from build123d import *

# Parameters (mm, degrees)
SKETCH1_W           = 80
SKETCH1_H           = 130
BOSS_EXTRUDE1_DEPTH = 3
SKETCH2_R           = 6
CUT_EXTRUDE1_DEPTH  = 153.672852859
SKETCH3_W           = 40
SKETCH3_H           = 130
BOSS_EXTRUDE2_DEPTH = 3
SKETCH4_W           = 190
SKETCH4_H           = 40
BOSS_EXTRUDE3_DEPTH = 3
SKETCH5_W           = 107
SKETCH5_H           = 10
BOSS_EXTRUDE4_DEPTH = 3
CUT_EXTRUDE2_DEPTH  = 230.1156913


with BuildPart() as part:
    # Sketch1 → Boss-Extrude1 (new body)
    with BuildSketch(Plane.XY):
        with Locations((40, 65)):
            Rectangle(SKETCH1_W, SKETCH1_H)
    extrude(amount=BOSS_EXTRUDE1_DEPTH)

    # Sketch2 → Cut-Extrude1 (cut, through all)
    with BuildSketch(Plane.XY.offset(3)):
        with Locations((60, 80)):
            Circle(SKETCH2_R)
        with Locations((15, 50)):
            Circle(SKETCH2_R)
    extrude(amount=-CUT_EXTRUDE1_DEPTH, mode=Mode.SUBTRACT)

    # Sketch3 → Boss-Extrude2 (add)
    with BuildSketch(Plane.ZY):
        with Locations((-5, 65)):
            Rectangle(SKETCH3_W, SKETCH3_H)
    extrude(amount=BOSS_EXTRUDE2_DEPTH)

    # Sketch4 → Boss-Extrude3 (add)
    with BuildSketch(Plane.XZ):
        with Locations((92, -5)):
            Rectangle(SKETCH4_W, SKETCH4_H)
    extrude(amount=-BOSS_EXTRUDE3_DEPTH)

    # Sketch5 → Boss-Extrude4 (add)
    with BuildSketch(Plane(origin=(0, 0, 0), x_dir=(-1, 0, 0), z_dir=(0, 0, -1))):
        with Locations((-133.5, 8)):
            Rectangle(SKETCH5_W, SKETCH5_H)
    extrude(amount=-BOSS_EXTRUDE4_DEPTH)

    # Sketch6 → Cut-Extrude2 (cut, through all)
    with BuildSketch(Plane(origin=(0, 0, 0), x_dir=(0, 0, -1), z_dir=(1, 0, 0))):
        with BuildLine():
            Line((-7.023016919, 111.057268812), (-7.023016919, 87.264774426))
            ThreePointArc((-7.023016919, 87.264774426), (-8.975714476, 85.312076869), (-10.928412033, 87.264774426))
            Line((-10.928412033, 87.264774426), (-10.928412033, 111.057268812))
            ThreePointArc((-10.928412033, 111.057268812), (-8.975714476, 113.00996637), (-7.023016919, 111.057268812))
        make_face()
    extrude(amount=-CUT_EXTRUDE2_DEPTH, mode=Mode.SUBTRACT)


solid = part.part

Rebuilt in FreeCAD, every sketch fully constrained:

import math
import FreeCAD as App
import Part
import Sketcher
Q = App.Units.Quantity

doc = App.newDocument("Part")
body = doc.addObject("PartDesign::Body", "Body")

sketch1 = doc.addObject("Sketcher::SketchObject", "Sketch")
body.addObject(sketch1)
sketch1.AttachmentSupport = (doc.XY_Plane, [""])
sketch1.MapMode = "FlatFace"
sketch1.addGeometry([
    Part.LineSegment(App.Vector(0, 130, 0), App.Vector(0, 0, 0)),
    Part.LineSegment(App.Vector(0, 0, 0), App.Vector(80, 0, 0)),
    Part.LineSegment(App.Vector(80, 0, 0), App.Vector(80, 130, 0)),
    Part.LineSegment(App.Vector(80, 130, 0), App.Vector(0, 130, 0)),
], False)
sketch1.addConstraint([
    Sketcher.Constraint("Coincident", 0, 2, 1, 1),
    Sketcher.Constraint("Coincident", 1, 2, 2, 1),
    Sketcher.Constraint("Coincident", 2, 2, 3, 1),
    Sketcher.Constraint("Coincident", 3, 2, 0, 1),
    Sketcher.Constraint("Vertical", 0),
    Sketcher.Constraint("Horizontal", 1),
    Sketcher.Constraint("Vertical", 2),
    Sketcher.Constraint("Horizontal", 3),
    Sketcher.Constraint("Coincident", 0, 2, -1, 1),
    Sketcher.Constraint("DistanceX", 1, 1, 1, 2, Q("80 mm")),
    Sketcher.Constraint("DistanceY", 0, 2, 0, 1, Q("130 mm")),
])
pad1 = doc.addObject("PartDesign::Pad", "Pad")
body.addObject(pad1)
pad1.Profile = sketch1
pad1.Length = 3

sketch2 = doc.addObject("Sketcher::SketchObject", "Sketch001")
body.addObject(sketch2)
sketch2.AttachmentSupport = (doc.XY_Plane, [""])
sketch2.MapMode = "FlatFace"
sketch2.AttachmentOffset = App.Placement(App.Vector(0, 0, 3), App.Rotation())
sketch2.addGeometry([
    Part.Circle(App.Vector(60, 80, 0), App.Vector(0, 0, 1), 6),
    Part.Circle(App.Vector(15, 50, 0), App.Vector(0, 0, 1), 6),
], False)
sketch2.addConstraint([
    Sketcher.Constraint("Equal", 0, 1),
    Sketcher.Constraint("Diameter", 0, Q("12 mm")),
    Sketcher.Constraint("DistanceX", -1, 1, 0, 3, Q("60 mm")),
    Sketcher.Constraint("DistanceY", -1, 1, 0, 3, Q("80 mm")),
    Sketcher.Constraint("DistanceX", -1, 1, 1, 3, Q("15 mm")),
    Sketcher.Constraint("DistanceY", -1, 1, 1, 3, Q("50 mm")),
])
pocket1 = doc.addObject("PartDesign::Pocket", "Pocket")
body.addObject(pocket1)
pocket1.Profile = sketch2
pocket1.Type = "ThroughAll"

sketch3 = doc.addObject("Sketcher::SketchObject", "Sketch002")
body.addObject(sketch3)
sketch3.AttachmentSupport = (doc.YZ_Plane, [""])
sketch3.MapMode = "FlatFace"
sketch3.addGeometry([
    Part.LineSegment(App.Vector(130, -25, 0), App.Vector(0, -25, 0)),
    Part.LineSegment(App.Vector(0, -25, 0), App.Vector(0, 15, 0)),
    Part.LineSegment(App.Vector(0, 15, 0), App.Vector(130, 15, 0)),
    Part.LineSegment(App.Vector(130, 15, 0), App.Vector(130, -25, 0)),
], False)
sketch3.addConstraint([
    Sketcher.Constraint("Coincident", 0, 2, 1, 1),
    Sketcher.Constraint("Coincident", 1, 2, 2, 1),
    Sketcher.Constraint("Coincident", 2, 2, 3, 1),
    Sketcher.Constraint("Coincident", 3, 2, 0, 1),
    Sketcher.Constraint("Horizontal", 0),
    Sketcher.Constraint("Vertical", 1),
    Sketcher.Constraint("Horizontal", 2),
    Sketcher.Constraint("Vertical", 3),
    Sketcher.Constraint("PointOnObject", 0, 2, -2),
    Sketcher.Constraint("DistanceX", 0, 2, 0, 1, Q("130 mm")),
    Sketcher.Constraint("DistanceY", 1, 1, 1, 2, Q("40 mm")),
    Sketcher.Constraint("DistanceY", 0, 2, -1, 1, Q("25 mm")),
])
pad2 = doc.addObject("PartDesign::Pad", "Pad001")
body.addObject(pad2)
pad2.Profile = sketch3
pad2.Length = 3
pad2.Reversed = True

sketch4 = doc.addObject("Sketcher::SketchObject", "Sketch003")
body.addObject(sketch4)
sketch4.AttachmentSupport = (doc.XZ_Plane, [""])
sketch4.MapMode = "FlatFace"
sketch4.addGeometry([
    Part.LineSegment(App.Vector(-3, 15, 0), App.Vector(-3, -25, 0)),
    Part.LineSegment(App.Vector(-3, -25, 0), App.Vector(187, -25, 0)),
    Part.LineSegment(App.Vector(187, -25, 0), App.Vector(187, 15, 0)),
    Part.LineSegment(App.Vector(187, 15, 0), App.Vector(-3, 15, 0)),
], False)
sketch4.addConstraint([
    Sketcher.Constraint("Coincident", 0, 2, 1, 1),
    Sketcher.Constraint("Coincident", 1, 2, 2, 1),
    Sketcher.Constraint("Coincident", 2, 2, 3, 1),
    Sketcher.Constraint("Coincident", 3, 2, 0, 1),
    Sketcher.Constraint("Vertical", 0),
    Sketcher.Constraint("Horizontal", 1),
    Sketcher.Constraint("Vertical", 2),
    Sketcher.Constraint("Horizontal", 3),
    Sketcher.Constraint("DistanceX", 1, 1, 1, 2, Q("190 mm")),
    Sketcher.Constraint("DistanceY", 0, 2, 0, 1, Q("40 mm")),
    Sketcher.Constraint("DistanceX", 0, 2, -1, 1, Q("3 mm")),
    Sketcher.Constraint("DistanceY", 0, 2, -1, 1, Q("25 mm")),
])
pad3 = doc.addObject("PartDesign::Pad", "Pad002")
body.addObject(pad3)
pad3.Profile = sketch4
pad3.Length = 3
pad3.Reversed = True

sketch5 = doc.addObject("Sketcher::SketchObject", "Sketch004")
body.addObject(sketch5)
sketch5.AttachmentSupport = (doc.XY_Plane, [""])
sketch5.MapMode = "FlatFace"
sketch5.addGeometry([
    Part.LineSegment(App.Vector(187, 13, 0), App.Vector(187, 3, 0)),
    Part.LineSegment(App.Vector(187, 3, 0), App.Vector(80, 3, 0)),
    Part.LineSegment(App.Vector(80, 3, 0), App.Vector(80, 13, 0)),
    Part.LineSegment(App.Vector(80, 13, 0), App.Vector(187, 13, 0)),
], False)
sketch5.addConstraint([
    Sketcher.Constraint("Coincident", 0, 2, 1, 1),
    Sketcher.Constraint("Coincident", 1, 2, 2, 1),
    Sketcher.Constraint("Coincident", 2, 2, 3, 1),
    Sketcher.Constraint("Coincident", 3, 2, 0, 1),
    Sketcher.Constraint("Vertical", 0),
    Sketcher.Constraint("Horizontal", 1),
    Sketcher.Constraint("Vertical", 2),
    Sketcher.Constraint("Horizontal", 3),
    Sketcher.Constraint("DistanceX", 1, 2, 1, 1, Q("107 mm")),
    Sketcher.Constraint("DistanceY", 0, 2, 0, 1, Q("10 mm")),
    Sketcher.Constraint("DistanceX", -1, 1, 0, 2, Q("187 mm")),
    Sketcher.Constraint("DistanceY", -1, 1, 0, 2, Q("3 mm")),
])
pad4 = doc.addObject("PartDesign::Pad", "Pad003")
body.addObject(pad4)
pad4.Profile = sketch5
pad4.Length = 3

sketch6 = doc.addObject("Sketcher::SketchObject", "Sketch005")
body.addObject(sketch6)
sketch6.AttachmentSupport = (doc.YZ_Plane, [""])
sketch6.MapMode = "FlatFace"
sketch6.addGeometry([
    Part.LineSegment(App.Vector(87.3, 7, 0), App.Vector(111.1, 7, 0)),
    Part.ArcOfCircle(Part.Circle(App.Vector(111.1, 9, 0), App.Vector(0, 0, 1), 2), math.radians(-90), math.radians(90)),
    Part.LineSegment(App.Vector(111.1, 10.9, 0), App.Vector(87.3, 10.9, 0)),
    Part.ArcOfCircle(Part.Circle(App.Vector(87.3, 9, 0), App.Vector(0, 0, 1), 2), math.radians(90), math.radians(270)),
], False)
sketch6.addConstraint([
    Sketcher.Constraint("Tangent", 0, 2, 1, 1),
    Sketcher.Constraint("Tangent", 1, 2, 2, 1),
    Sketcher.Constraint("Tangent", 2, 2, 3, 1),
    Sketcher.Constraint("Tangent", 3, 2, 0, 1),
    Sketcher.Constraint("Horizontal", 0),
    Sketcher.Constraint("Horizontal", 2),
    Sketcher.Constraint("Radius", 1, Q("1.952698 mm")),
    Sketcher.Constraint("DistanceX", 0, 1, 0, 2, Q("23.792494 mm")),
    Sketcher.Constraint("DistanceX", -1, 1, 1, 3, Q("111.057269 mm")),
    Sketcher.Constraint("DistanceY", -1, 1, 1, 3, Q("8.975714 mm")),
])
pocket2 = doc.addObject("PartDesign::Pocket", "Pocket001")
body.addObject(pocket2)
pocket2.Profile = sketch6
pocket2.Type = "ThroughAll"

doc.recompute()
